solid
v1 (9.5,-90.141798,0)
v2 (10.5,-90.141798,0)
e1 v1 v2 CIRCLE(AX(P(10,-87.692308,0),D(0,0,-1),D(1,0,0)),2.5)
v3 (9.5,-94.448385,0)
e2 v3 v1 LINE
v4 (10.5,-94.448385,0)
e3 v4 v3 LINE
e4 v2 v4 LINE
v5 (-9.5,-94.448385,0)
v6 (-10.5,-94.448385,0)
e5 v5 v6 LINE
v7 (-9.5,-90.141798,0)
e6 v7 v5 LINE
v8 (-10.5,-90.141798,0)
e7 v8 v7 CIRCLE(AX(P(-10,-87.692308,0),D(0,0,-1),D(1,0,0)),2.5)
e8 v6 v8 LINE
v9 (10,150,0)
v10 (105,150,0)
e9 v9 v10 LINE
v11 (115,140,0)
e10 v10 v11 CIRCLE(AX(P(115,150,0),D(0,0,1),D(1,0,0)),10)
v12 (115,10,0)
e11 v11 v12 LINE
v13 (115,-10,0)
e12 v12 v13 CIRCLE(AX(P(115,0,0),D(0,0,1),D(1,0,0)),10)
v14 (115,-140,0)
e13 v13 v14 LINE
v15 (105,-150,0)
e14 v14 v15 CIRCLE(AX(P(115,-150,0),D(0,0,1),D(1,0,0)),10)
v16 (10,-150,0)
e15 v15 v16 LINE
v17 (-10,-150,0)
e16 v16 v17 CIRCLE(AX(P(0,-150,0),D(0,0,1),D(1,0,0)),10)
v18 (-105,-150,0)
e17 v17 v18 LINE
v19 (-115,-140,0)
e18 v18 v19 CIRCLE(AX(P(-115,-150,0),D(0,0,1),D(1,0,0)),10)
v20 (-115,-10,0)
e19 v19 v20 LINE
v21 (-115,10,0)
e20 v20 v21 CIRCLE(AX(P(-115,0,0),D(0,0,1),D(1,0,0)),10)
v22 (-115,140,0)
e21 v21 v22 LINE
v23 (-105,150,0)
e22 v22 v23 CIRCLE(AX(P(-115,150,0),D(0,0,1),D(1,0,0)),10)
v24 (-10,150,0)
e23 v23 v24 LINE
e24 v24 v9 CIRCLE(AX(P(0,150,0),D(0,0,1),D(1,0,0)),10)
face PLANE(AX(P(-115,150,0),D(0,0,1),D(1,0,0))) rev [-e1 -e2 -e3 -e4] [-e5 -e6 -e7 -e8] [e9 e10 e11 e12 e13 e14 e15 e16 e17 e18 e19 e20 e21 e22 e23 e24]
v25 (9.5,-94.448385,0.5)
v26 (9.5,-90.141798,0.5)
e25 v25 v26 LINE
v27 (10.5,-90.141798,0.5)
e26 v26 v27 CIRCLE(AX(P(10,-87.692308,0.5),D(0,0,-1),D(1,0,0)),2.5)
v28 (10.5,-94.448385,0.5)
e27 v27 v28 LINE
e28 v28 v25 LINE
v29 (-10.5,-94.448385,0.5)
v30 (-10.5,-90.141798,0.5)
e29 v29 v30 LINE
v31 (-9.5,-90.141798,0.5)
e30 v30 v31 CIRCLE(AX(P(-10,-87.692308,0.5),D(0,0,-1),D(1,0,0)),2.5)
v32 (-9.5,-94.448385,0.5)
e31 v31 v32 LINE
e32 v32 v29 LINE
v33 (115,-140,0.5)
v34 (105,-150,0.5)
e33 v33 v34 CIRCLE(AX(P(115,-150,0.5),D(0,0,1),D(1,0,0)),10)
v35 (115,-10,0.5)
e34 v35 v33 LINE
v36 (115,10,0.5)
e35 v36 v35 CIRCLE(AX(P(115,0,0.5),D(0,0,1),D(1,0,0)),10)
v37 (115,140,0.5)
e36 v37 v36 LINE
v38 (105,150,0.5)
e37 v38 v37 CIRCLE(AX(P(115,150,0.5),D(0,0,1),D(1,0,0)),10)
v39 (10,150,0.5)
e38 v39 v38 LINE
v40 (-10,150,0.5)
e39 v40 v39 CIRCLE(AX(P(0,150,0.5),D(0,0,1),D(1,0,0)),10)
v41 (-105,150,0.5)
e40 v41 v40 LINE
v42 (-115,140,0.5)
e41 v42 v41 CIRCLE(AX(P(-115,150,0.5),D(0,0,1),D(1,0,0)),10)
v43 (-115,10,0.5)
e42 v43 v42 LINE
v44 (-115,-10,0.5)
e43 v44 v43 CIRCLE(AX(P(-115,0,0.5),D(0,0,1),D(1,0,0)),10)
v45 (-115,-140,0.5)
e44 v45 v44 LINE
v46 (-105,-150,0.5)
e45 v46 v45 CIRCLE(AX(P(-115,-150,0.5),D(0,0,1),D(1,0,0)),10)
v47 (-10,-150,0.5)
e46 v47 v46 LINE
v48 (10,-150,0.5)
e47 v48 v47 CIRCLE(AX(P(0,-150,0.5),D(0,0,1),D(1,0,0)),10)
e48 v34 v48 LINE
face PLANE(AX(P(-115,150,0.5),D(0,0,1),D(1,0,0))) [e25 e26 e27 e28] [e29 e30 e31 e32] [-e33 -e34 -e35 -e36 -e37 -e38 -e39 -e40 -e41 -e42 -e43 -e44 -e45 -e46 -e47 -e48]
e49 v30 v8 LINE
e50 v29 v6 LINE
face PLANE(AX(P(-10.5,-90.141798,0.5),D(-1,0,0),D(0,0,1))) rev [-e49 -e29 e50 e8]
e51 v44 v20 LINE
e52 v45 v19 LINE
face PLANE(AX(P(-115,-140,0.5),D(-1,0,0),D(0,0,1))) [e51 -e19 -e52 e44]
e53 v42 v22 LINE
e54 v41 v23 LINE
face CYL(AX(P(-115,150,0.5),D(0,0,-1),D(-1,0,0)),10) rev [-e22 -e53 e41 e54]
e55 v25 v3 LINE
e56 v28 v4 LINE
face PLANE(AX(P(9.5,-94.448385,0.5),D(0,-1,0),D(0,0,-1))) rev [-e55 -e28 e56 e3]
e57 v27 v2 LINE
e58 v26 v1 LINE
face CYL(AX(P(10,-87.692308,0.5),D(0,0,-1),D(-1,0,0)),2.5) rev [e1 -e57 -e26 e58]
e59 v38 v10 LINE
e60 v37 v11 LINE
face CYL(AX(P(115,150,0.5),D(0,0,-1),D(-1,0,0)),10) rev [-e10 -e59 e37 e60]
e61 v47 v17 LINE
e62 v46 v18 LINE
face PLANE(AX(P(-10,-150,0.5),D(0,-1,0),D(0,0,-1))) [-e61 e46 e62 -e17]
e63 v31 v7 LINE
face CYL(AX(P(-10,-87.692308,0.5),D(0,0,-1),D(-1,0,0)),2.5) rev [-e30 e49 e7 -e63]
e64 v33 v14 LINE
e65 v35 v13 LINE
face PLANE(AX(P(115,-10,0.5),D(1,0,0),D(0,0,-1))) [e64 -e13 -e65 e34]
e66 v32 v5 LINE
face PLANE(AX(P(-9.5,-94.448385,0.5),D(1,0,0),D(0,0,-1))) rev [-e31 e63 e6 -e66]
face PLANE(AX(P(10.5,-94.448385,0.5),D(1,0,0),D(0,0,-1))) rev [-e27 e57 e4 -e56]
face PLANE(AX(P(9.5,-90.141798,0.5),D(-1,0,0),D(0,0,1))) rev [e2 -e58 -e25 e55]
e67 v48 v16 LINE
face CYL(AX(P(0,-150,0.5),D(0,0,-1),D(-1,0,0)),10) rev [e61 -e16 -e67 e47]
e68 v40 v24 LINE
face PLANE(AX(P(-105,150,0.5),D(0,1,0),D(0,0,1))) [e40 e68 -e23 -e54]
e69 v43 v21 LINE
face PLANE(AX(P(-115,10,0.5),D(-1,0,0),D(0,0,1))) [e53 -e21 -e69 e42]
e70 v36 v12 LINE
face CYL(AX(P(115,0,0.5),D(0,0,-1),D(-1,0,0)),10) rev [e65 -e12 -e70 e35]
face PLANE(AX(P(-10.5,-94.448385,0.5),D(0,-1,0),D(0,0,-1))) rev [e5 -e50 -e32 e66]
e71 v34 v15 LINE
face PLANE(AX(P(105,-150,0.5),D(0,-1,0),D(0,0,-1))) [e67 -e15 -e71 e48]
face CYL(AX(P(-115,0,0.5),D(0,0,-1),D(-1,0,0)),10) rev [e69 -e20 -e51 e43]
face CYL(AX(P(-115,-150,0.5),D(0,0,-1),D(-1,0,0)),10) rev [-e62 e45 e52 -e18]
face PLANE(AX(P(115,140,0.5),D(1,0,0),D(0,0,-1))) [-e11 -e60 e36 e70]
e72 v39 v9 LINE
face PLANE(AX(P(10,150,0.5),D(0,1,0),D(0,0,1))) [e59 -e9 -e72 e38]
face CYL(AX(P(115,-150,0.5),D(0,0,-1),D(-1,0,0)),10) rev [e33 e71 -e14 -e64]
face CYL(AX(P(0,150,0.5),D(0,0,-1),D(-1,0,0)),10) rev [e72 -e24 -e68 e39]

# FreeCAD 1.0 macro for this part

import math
import FreeCAD as App
import Part
import Sketcher

V = App.Vector
Q = App.Units.Quantity

doc = App.newDocument("Part")
body = doc.addObject("PartDesign::Body", "Body")

sketch1 = body.newObject("Sketcher::SketchObject", "Sketch")
sketch1.AttachmentSupport = (doc.getObject("XY_Plane"), [""])
sketch1.MapMode = "FlatFace"
sketch1.addGeometry([
    Part.LineSegment(V(-105, 150, 0), V(-10, 150, 0)),
    Part.ArcOfCircle(Part.Circle(V(0, 150, 0), V(0, 0, 1), 10), math.radians(180), math.radians(360)),
    Part.LineSegment(V(10, 150, 0), V(105, 150, 0)),
    Part.ArcOfCircle(Part.Circle(V(115, 150, 0), V(0, 0, 1), 10), math.radians(180), math.radians(270)),
    Part.LineSegment(V(115, 140, 0), V(115, 10, 0)),
    Part.ArcOfCircle(Part.Circle(V(115, 0, 0), V(0, 0, 1), 10), math.radians(90), math.radians(270)),
    Part.LineSegment(V(115, -10, 0), V(115, -140, 0)),
    Part.ArcOfCircle(Part.Circle(V(115, -150, 0), V(0, 0, 1), 10), math.radians(90), math.radians(180)),
    Part.LineSegment(V(105, -150, 0), V(10, -150, 0)),
    Part.ArcOfCircle(Part.Circle(V(0, -150, 0), V(0, 0, 1), 10), math.radians(0), math.radians(180)),
    Part.LineSegment(V(-10, -150, 0), V(-105, -150, 0)),
    Part.ArcOfCircle(Part.Circle(V(-115, -150, 0), V(0, 0, 1), 10), math.radians(0), math.radians(90)),
    Part.LineSegment(V(-115, -140, 0), V(-115, -10, 0)),
    Part.ArcOfCircle(Part.Circle(V(-115, 0, 0), V(0, 0, 1), 10), math.radians(-90), math.radians(90)),
    Part.LineSegment(V(-115, 10, 0), V(-115, 140, 0)),
    Part.ArcOfCircle(Part.Circle(V(-115, 150, 0), V(0, 0, 1), 10), math.radians(-90), math.radians(0)),
    Part.LineSegment(V(9.5, -94.448385, 0), V(10.5, -94.448385, 0)),
    Part.LineSegment(V(10.5, -94.448385, 0), V(10.5, -90.141798, 0)),
    Part.ArcOfCircle(Part.Circle(V(10, -87.692308, 0), V(0, 0, 1), 2.5), math.radians(-78.463041), math.radians(258.463041)),
    Part.LineSegment(V(9.5, -90.141798, 0), V(9.5, -94.448385, 0)),
    Part.LineSegment(V(-10.5, -94.448385, 0), V(-9.5, -94.448385, 0)),
    Part.LineSegment(V(-9.5, -94.448385, 0), V(-9.5, -90.141798, 0)),
    Part.ArcOfCircle(Part.Circle(V(-10, -87.692308, 0), V(0, 0, 1), 2.5), math.radians(-78.463041), math.radians(258.463041)),
    Part.LineSegment(V(-10.5, -90.141798, 0), V(-10.5, -94.448385, 0)),
], False)
sketch1.addConstraint([
    Sketcher.Constraint("Coincident", 0, 2, 1, 1),
    Sketcher.Constraint("Coincident", 1, 2, 2, 1),
    Sketcher.Constraint("Coincident", 2, 2, 3, 1),
    Sketcher.Constraint("Coincident", 3, 2, 4, 1),
    Sketcher.Constraint("Coincident", 4, 2, 5, 1),
    Sketcher.Constraint("Coincident", 5, 2, 6, 1),
    Sketcher.Constraint("Coincident", 6, 2, 7, 1),
    Sketcher.Constraint("Coincident", 7, 2, 8, 1),
    Sketcher.Constraint("Coincident", 8, 2, 9, 1),
    Sketcher.Constraint("Coincident", 9, 2, 10, 1),
    Sketcher.Constraint("Coincident", 10, 2, 11, 1),
    Sketcher.Constraint("Coincident", 11, 2, 12, 1),
    Sketcher.Constraint("Coincident", 12, 2, 13, 1),
    Sketcher.Constraint("Coincident", 13, 2, 14, 1),
    Sketcher.Constraint("Coincident", 14, 2, 15, 1),
    Sketcher.Constraint("Coincident", 15, 2, 0, 1),
    Sketcher.Constraint("Coincident", 16, 2, 17, 1),
    Sketcher.Constraint("Coincident", 17, 2, 18, 1),
    Sketcher.Constraint("Coincident", 18, 2, 19, 1),
    Sketcher.Constraint("Coincident", 19, 2, 16, 1),
    Sketcher.Constraint("Coincident", 20, 2, 21, 1),
    Sketcher.Constraint("Coincident", 21, 2, 22, 1),
    Sketcher.Constraint("Coincident", 22, 2, 23, 1),
    Sketcher.Constraint("Coincident", 23, 2, 20, 1),
    Sketcher.Constraint("Horizontal", 0),
    Sketcher.Constraint("Horizontal", 2),
    Sketcher.Constraint("Vertical", 4),
    Sketcher.Constraint("Vertical", 6),
    Sketcher.Constraint("Horizontal", 8),
    Sketcher.Constraint("Horizontal", 10),
    Sketcher.Constraint("Vertical", 12),
    Sketcher.Constraint("Vertical", 14),
    Sketcher.Constraint("Horizontal", 16),
    Sketcher.Constraint("Vertical", 17),
    Sketcher.Constraint("Vertical", 19),
    Sketcher.Constraint("Horizontal", 20),
    Sketcher.Constraint("Vertical", 21),
    Sketcher.Constraint("Vertical", 23),
    Sketcher.Constraint("Equal", 1, 3),
    Sketcher.Constraint("Equal", 3, 5),
    Sketcher.Constraint("Equal", 5, 7),
    Sketcher.Constraint("Equal", 7, 9),
    Sketcher.Constraint("Equal", 9, 11),
    Sketcher.Constraint("Equal", 11, 13),
    Sketcher.Constraint("Equal", 13, 15),
    Sketcher.Constraint("Equal", 18, 22),
    Sketcher.Constraint("Symmetric", 1, 3, 9, 3, -1, 1),
    Sketcher.Constraint("Symmetric", 3, 3, 11, 3, -1, 1),
    Sketcher.Constraint("Symmetric", 5, 3, 13, 3, -1, 1),
    Sketcher.Constraint("Symmetric", 7, 3, 15, 3, -1, 1),
    Sketcher.Constraint("Symmetric", 7, 3, 11, 3, -2),
    Sketcher.Constraint("Symmetric", 18, 3, 22, 3, -2),
    Sketcher.Constraint("Symmetric", 0, 2, 1, 2, -2),
    Sketcher.Constraint("Symmetric", 5, 2, 12, 2, -2),
    Sketcher.Constraint("Symmetric", 19, 2, 20, 2, -2),
    Sketcher.Constraint("Horizontal", 1, 3, 3, 3),
    Sketcher.Constraint("Horizontal", 15, 3, 0, 2),
    Sketcher.Constraint("Horizontal", 11, 3, 7, 2),
    Sketcher.Constraint("Horizontal", 8, 2, 9, 2),
    Sketcher.Constraint("Horizontal", 17, 2, 18, 2),
    Sketcher.Constraint("Horizontal", 21, 2, 22, 2),
    Sketcher.Constraint("Vertical", 3, 3, 5, 3),
    Sketcher.Constraint("Vertical", 22, 3, 0, 2),
    Sketcher.Constraint("Vertical", 7, 3, 3, 2),
    Sketcher.Constraint("Vertical", 4, 2, 5, 2),
    Sketcher.Constraint("Vertical", 12, 2, 13, 2),
    Sketcher.Constraint("Radius", 1, Q("10 mm")),
    Sketcher.Constraint("Radius", 18, Q("2.5 mm")),
    Sketcher.Constraint("DistanceX", 0, 1, 0, 2, Q("95 mm")),
    Sketcher.Constraint("DistanceX", 16, 1, 16, 2, Q("1 mm")),
    Sketcher.Constraint("DistanceY", 4, 2, 4, 1, Q("130 mm")),
    Sketcher.Constraint("DistanceY", 17, 2, -1, 1, Q("90.141798 mm")),
    Sketcher.Constraint("DistanceY", 17, 1, 17, 2, Q("4.306587 mm")),
])
pad1 = body.newObject("PartDesign::Pad", "Pad")
pad1.Profile = sketch1
pad1.Length = 0.5

doc.recompute()
